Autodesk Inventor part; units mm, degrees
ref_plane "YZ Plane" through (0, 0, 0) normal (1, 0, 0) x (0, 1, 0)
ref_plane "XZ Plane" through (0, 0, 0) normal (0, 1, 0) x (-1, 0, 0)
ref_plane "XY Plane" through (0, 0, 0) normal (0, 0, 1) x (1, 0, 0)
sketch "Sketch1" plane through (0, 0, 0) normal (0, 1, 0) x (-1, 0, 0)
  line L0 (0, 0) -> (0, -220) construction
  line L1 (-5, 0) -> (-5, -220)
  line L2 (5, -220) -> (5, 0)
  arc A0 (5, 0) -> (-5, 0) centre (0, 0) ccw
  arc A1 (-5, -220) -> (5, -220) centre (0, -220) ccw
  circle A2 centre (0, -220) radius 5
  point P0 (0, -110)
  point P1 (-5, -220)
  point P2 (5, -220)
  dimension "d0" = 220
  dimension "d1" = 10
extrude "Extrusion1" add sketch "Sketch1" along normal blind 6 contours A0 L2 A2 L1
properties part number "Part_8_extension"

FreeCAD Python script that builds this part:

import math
import FreeCAD as App
import Part
import Sketcher
from FreeCAD import Vector
Q = App.Units.Quantity

doc = App.newDocument("Part")
params = doc.addObject("Spreadsheet::Sheet", "Params")
for row, (alias, value) in enumerate([
    ("sketch1_radius", "5 mm"),
    ("sketch1_height", "220 mm"),
    ("pad1_length", "6 mm"),
], start=1):
    params.set(f"A{row}", alias)
    params.set(f"B{row}", "=" + value)
    params.setAlias(f"B{row}", alias)

body = doc.addObject("PartDesign::Body", "Body")

# Sketch on XZ plane
sketch1 = body.newObject("Sketcher::SketchObject", "Sketch")
sketch1.AttachmentSupport = (doc.getObject("XZ_Plane"), [""])
sketch1.MapMode = "FlatFace"
sketch1.addGeometry([
    Part.ArcOfCircle(Part.Circle(Vector(0, 0, 0), Vector(0, 0, 1), 5), math.radians(0), math.radians(180)),
    Part.LineSegment(Vector(5, 0, 0), Vector(5, -220, 0)),
    Part.ArcOfCircle(Part.Circle(Vector(0, -220, 0), Vector(0, 0, 1), 5), math.radians(0), math.radians(180)),
    Part.LineSegment(Vector(-5, -220, 0), Vector(-5, 0, 0)),
], False)
sketch1.addConstraint([
    Sketcher.Constraint("Tangent", 0, 1, 1, 1),
    Sketcher.Constraint("Tangent", 1, 2, 2, 1),
    Sketcher.Constraint("Tangent", 2, 2, 3, 1),
    Sketcher.Constraint("Tangent", 3, 2, 0, 2),
    Sketcher.Constraint("Vertical", 1),
    Sketcher.Constraint("Vertical", 3),
    Sketcher.Constraint("Coincident", 0, 3, -1, 1),
    Sketcher.Constraint("Radius", 0, Q("5 mm")),
    Sketcher.Constraint("DistanceY", 1, 2, 1, 1, Q("220 mm")),
])
sketch1.setExpression("Constraints[7]", "Params.sketch1_radius")
sketch1.setExpression("Constraints[8]", "Params.sketch1_height")
pad1 = body.newObject("PartDesign::Pad", "Pad")
pad1.Profile = sketch1
pad1.setExpression("Length", "Params.pad1_length")
pad1.Reversed = True

doc.recompute()
